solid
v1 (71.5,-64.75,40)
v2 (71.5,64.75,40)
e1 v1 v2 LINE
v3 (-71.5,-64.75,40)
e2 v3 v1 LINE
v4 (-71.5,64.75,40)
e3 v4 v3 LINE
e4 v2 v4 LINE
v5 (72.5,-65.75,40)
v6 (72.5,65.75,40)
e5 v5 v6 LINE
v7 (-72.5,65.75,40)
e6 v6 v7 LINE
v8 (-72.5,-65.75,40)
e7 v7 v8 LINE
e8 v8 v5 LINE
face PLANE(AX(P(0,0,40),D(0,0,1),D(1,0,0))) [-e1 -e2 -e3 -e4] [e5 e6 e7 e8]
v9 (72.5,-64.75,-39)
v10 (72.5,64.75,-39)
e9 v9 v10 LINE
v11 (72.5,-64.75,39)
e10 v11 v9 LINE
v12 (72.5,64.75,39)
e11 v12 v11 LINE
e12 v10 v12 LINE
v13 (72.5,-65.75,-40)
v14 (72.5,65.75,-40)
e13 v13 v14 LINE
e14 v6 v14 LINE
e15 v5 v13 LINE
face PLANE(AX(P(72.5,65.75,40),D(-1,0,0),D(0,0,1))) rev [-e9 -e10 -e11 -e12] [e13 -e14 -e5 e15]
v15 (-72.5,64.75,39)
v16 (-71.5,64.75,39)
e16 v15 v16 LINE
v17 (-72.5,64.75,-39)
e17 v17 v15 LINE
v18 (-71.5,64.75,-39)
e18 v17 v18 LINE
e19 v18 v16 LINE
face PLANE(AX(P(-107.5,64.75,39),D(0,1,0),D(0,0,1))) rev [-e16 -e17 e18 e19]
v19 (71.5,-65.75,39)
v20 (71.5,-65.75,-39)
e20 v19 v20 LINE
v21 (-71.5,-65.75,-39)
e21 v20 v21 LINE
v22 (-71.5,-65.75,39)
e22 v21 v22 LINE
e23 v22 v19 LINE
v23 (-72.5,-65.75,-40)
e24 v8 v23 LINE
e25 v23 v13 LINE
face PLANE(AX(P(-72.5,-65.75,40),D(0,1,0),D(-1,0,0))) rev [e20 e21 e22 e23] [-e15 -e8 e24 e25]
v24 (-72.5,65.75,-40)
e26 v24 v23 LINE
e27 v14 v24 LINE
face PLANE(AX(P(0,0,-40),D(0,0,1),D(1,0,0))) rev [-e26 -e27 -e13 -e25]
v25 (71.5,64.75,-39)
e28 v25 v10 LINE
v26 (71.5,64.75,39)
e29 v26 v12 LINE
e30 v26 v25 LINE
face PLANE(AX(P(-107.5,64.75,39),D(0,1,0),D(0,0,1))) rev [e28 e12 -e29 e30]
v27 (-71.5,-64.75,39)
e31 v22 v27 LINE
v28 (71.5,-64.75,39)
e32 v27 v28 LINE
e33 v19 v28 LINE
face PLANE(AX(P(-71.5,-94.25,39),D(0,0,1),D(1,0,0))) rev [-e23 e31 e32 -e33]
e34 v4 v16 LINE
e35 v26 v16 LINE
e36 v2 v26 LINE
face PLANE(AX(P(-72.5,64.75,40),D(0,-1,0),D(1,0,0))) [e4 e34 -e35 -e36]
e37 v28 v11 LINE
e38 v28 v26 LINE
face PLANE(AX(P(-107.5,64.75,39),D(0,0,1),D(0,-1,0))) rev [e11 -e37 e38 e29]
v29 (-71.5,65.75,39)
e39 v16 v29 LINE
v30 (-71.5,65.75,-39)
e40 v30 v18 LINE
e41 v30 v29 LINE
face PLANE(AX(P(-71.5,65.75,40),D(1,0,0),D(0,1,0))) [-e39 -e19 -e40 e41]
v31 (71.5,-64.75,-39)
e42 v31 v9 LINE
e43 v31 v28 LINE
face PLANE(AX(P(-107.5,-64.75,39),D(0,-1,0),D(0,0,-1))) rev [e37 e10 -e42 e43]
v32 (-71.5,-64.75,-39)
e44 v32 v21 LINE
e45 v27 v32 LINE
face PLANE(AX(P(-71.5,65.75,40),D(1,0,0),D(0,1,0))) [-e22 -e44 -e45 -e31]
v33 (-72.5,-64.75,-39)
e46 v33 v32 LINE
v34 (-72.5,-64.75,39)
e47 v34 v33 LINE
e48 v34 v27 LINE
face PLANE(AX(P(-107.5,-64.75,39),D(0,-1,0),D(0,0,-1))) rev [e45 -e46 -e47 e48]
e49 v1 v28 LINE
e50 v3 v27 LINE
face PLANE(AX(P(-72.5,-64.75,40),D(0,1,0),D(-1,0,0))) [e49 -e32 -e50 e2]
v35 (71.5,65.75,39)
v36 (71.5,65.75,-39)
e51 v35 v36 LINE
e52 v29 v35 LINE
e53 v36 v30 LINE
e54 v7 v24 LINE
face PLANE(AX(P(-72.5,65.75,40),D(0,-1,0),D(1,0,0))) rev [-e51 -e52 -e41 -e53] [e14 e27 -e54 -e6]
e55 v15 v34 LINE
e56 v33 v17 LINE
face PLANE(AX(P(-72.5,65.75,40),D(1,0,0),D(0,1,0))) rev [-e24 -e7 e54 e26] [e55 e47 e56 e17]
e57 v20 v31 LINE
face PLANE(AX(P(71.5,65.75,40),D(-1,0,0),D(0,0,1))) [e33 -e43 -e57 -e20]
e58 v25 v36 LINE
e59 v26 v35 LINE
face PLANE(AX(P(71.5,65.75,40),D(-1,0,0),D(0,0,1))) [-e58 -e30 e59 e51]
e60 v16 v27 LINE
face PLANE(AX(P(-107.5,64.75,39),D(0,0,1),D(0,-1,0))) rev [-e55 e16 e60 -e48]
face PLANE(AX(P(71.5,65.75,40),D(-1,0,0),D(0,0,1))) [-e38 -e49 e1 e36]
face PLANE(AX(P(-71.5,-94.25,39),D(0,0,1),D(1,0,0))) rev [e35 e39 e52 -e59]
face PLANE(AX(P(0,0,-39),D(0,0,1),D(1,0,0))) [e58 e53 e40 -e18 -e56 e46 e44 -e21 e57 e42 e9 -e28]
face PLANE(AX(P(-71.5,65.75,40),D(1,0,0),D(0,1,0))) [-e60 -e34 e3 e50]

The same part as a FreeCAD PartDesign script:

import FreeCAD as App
import Part
import Sketcher
Q = App.Units.Quantity


def faces_at(feature, points):
    """Names of the faces that lie closest to the given points."""
    faces = feature.Shape.Faces
    near = lambda p: min(range(len(faces)), key=lambda i: faces[i].distToShape(Part.Vertex(*p))[0])
    return sorted({f"Face{near(p) + 1}" for p in points})

doc = App.newDocument("Part")
body = doc.addObject("PartDesign::Body", "Body")

# Sketch on XY plane
sketch1 = doc.addObject("Sketcher::SketchObject", "Sketch")
body.addObject(sketch1)
sketch1.AttachmentSupport = (doc.XY_Plane, [""])
sketch1.MapMode = "FlatFace"
sketch1.addGeometry([
    Part.LineSegment(App.Vector(-72.5, 65.75, 0), App.Vector(-72.5, -65.75, 0)),
    Part.LineSegment(App.Vector(-72.5, -65.75, 0), App.Vector(72.5, -65.75, 0)),
    Part.LineSegment(App.Vector(72.5, -65.75, 0), App.Vector(72.5, 65.75, 0)),
    Part.LineSegment(App.Vector(72.5, 65.75, 0), App.Vector(-72.5, 65.75, 0)),
], False)
sketch1.addConstraint([
    Sketcher.Constraint("Coincident", 0, 2, 1, 1),
    Sketcher.Constraint("Coincident", 1, 2, 2, 1),
    Sketcher.Constraint("Coincident", 2, 2, 3, 1),
    Sketcher.Constraint("Coincident", 3, 2, 0, 1),
    Sketcher.Constraint("Vertical", 0),
    Sketcher.Constraint("Horizontal", 1),
    Sketcher.Constraint("Vertical", 2),
    Sketcher.Constraint("Horizontal", 3),
    Sketcher.Constraint("Symmetric", 0, 2, 2, 2, -1, 1),
    Sketcher.Constraint("DistanceX", 1, 1, 1, 2, Q("145 mm")),
    Sketcher.Constraint("DistanceY", 0, 2, 0, 1, Q("131.5 mm")),
])
pad1 = doc.addObject("PartDesign::Pad", "Pad")
body.addObject(pad1)
pad1.Profile = sketch1
pad1.Length = 80
pad1.Midplane = True
doc.recompute()

thickness = doc.addObject("PartDesign::Thickness", "Thickness")
body.addObject(thickness)
thickness.Base = (pad1, faces_at(pad1, [(0, 0, 40)]))
thickness.Value = 1
thickness.Reversed = True
thickness.Join = "Intersection"

# Sketch on XZ plane
sketch2 = doc.addObject("Sketcher::SketchObject", "Sketch001")
body.addObject(sketch2)
sketch2.AttachmentSupport = (doc.XZ_Plane, [""])
sketch2.MapMode = "FlatFace"
sketch2.AttachmentOffset = App.Placement(App.Vector(0, 0, -65.75), App.Rotation())
sketch2.addGeometry([
    Part.LineSegment(App.Vector(-71.5, -39, 0), App.Vector(-71.5, 39, 0)),
    Part.LineSegment(App.Vector(-71.5, 39, 0), App.Vector(71.5, 39, 0)),
    Part.LineSegment(App.Vector(71.5, 39, 0), App.Vector(71.5, -39, 0)),
    Part.LineSegment(App.Vector(71.5, -39, 0), App.Vector(-71.5, -39, 0)),
], False)
sketch2.addConstraint([
    Sketcher.Constraint("Coincident", 0, 2, 1, 1),
    Sketcher.Constraint("Coincident", 1, 2, 2, 1),
    Sketcher.Constraint("Coincident", 2, 2, 3, 1),
    Sketcher.Constraint("Coincident", 3, 2, 0, 1),
    Sketcher.Constraint("Vertical", 0),
    Sketcher.Constraint("Horizontal", 1),
    Sketcher.Constraint("Vertical", 2),
    Sketcher.Constraint("Horizontal", 3),
    Sketcher.Constraint("Symmetric", 0, 2, 2, 2, -1, 1),
    Sketcher.Constraint("DistanceX", 1, 1, 1, 2, Q("143 mm")),
    Sketcher.Constraint("DistanceY", 0, 1, 0, 2, Q("78 mm")),
])
pocket1 = doc.addObject("PartDesign::Pocket", "Pocket")
body.addObject(pocket1)
pocket1.Profile = sketch2
pocket1.Length = 160
pocket1.Reversed = True

# Sketch on YZ plane
sketch3 = doc.addObject("Sketcher::SketchObject", "Sketch002")
body.addObject(sketch3)
sketch3.AttachmentSupport = (doc.YZ_Plane, [""])
sketch3.MapMode = "FlatFace"
sketch3.AttachmentOffset = App.Placement(App.Vector(0, 0, 72.5), App.Rotation())
sketch3.addGeometry([
    Part.LineSegment(App.Vector(64.75, 39, 0), App.Vector(-64.75, 39, 0)),
    Part.LineSegment(App.Vector(-64.75, 39, 0), App.Vector(-64.75, -39, 0)),
    Part.LineSegment(App.Vector(-64.75, -39, 0), App.Vector(64.75, -39, 0)),
    Part.LineSegment(App.Vector(64.75, -39, 0), App.Vector(64.75, 39, 0)),
], False)
sketch3.addConstraint([
    Sketcher.Constraint("Coincident", 0, 2, 1, 1),
    Sketcher.Constraint("Coincident", 1, 2, 2, 1),
    Sketcher.Constraint("Coincident", 2, 2, 3, 1),
    Sketcher.Constraint("Coincident", 3, 2, 0, 1),
    Sketcher.Constraint("Horizontal", 0),
    Sketcher.Constraint("Vertical", 1),
    Sketcher.Constraint("Horizontal", 2),
    Sketcher.Constraint("Vertical", 3),
    Sketcher.Constraint("Symmetric", 0, 2, 2, 2, -1, 1),
    Sketcher.Constraint("DistanceY", 1, 2, 1, 1, Q("78 mm")),
    Sketcher.Constraint("DistanceX", 0, 2, 0, 1, Q("129.5 mm")),
])
pocket2 = doc.addObject("PartDesign::Pocket", "Pocket001")
body.addObject(pocket2)
pocket2.Profile = sketch3
pocket2.Length = 180

doc.recompute()
